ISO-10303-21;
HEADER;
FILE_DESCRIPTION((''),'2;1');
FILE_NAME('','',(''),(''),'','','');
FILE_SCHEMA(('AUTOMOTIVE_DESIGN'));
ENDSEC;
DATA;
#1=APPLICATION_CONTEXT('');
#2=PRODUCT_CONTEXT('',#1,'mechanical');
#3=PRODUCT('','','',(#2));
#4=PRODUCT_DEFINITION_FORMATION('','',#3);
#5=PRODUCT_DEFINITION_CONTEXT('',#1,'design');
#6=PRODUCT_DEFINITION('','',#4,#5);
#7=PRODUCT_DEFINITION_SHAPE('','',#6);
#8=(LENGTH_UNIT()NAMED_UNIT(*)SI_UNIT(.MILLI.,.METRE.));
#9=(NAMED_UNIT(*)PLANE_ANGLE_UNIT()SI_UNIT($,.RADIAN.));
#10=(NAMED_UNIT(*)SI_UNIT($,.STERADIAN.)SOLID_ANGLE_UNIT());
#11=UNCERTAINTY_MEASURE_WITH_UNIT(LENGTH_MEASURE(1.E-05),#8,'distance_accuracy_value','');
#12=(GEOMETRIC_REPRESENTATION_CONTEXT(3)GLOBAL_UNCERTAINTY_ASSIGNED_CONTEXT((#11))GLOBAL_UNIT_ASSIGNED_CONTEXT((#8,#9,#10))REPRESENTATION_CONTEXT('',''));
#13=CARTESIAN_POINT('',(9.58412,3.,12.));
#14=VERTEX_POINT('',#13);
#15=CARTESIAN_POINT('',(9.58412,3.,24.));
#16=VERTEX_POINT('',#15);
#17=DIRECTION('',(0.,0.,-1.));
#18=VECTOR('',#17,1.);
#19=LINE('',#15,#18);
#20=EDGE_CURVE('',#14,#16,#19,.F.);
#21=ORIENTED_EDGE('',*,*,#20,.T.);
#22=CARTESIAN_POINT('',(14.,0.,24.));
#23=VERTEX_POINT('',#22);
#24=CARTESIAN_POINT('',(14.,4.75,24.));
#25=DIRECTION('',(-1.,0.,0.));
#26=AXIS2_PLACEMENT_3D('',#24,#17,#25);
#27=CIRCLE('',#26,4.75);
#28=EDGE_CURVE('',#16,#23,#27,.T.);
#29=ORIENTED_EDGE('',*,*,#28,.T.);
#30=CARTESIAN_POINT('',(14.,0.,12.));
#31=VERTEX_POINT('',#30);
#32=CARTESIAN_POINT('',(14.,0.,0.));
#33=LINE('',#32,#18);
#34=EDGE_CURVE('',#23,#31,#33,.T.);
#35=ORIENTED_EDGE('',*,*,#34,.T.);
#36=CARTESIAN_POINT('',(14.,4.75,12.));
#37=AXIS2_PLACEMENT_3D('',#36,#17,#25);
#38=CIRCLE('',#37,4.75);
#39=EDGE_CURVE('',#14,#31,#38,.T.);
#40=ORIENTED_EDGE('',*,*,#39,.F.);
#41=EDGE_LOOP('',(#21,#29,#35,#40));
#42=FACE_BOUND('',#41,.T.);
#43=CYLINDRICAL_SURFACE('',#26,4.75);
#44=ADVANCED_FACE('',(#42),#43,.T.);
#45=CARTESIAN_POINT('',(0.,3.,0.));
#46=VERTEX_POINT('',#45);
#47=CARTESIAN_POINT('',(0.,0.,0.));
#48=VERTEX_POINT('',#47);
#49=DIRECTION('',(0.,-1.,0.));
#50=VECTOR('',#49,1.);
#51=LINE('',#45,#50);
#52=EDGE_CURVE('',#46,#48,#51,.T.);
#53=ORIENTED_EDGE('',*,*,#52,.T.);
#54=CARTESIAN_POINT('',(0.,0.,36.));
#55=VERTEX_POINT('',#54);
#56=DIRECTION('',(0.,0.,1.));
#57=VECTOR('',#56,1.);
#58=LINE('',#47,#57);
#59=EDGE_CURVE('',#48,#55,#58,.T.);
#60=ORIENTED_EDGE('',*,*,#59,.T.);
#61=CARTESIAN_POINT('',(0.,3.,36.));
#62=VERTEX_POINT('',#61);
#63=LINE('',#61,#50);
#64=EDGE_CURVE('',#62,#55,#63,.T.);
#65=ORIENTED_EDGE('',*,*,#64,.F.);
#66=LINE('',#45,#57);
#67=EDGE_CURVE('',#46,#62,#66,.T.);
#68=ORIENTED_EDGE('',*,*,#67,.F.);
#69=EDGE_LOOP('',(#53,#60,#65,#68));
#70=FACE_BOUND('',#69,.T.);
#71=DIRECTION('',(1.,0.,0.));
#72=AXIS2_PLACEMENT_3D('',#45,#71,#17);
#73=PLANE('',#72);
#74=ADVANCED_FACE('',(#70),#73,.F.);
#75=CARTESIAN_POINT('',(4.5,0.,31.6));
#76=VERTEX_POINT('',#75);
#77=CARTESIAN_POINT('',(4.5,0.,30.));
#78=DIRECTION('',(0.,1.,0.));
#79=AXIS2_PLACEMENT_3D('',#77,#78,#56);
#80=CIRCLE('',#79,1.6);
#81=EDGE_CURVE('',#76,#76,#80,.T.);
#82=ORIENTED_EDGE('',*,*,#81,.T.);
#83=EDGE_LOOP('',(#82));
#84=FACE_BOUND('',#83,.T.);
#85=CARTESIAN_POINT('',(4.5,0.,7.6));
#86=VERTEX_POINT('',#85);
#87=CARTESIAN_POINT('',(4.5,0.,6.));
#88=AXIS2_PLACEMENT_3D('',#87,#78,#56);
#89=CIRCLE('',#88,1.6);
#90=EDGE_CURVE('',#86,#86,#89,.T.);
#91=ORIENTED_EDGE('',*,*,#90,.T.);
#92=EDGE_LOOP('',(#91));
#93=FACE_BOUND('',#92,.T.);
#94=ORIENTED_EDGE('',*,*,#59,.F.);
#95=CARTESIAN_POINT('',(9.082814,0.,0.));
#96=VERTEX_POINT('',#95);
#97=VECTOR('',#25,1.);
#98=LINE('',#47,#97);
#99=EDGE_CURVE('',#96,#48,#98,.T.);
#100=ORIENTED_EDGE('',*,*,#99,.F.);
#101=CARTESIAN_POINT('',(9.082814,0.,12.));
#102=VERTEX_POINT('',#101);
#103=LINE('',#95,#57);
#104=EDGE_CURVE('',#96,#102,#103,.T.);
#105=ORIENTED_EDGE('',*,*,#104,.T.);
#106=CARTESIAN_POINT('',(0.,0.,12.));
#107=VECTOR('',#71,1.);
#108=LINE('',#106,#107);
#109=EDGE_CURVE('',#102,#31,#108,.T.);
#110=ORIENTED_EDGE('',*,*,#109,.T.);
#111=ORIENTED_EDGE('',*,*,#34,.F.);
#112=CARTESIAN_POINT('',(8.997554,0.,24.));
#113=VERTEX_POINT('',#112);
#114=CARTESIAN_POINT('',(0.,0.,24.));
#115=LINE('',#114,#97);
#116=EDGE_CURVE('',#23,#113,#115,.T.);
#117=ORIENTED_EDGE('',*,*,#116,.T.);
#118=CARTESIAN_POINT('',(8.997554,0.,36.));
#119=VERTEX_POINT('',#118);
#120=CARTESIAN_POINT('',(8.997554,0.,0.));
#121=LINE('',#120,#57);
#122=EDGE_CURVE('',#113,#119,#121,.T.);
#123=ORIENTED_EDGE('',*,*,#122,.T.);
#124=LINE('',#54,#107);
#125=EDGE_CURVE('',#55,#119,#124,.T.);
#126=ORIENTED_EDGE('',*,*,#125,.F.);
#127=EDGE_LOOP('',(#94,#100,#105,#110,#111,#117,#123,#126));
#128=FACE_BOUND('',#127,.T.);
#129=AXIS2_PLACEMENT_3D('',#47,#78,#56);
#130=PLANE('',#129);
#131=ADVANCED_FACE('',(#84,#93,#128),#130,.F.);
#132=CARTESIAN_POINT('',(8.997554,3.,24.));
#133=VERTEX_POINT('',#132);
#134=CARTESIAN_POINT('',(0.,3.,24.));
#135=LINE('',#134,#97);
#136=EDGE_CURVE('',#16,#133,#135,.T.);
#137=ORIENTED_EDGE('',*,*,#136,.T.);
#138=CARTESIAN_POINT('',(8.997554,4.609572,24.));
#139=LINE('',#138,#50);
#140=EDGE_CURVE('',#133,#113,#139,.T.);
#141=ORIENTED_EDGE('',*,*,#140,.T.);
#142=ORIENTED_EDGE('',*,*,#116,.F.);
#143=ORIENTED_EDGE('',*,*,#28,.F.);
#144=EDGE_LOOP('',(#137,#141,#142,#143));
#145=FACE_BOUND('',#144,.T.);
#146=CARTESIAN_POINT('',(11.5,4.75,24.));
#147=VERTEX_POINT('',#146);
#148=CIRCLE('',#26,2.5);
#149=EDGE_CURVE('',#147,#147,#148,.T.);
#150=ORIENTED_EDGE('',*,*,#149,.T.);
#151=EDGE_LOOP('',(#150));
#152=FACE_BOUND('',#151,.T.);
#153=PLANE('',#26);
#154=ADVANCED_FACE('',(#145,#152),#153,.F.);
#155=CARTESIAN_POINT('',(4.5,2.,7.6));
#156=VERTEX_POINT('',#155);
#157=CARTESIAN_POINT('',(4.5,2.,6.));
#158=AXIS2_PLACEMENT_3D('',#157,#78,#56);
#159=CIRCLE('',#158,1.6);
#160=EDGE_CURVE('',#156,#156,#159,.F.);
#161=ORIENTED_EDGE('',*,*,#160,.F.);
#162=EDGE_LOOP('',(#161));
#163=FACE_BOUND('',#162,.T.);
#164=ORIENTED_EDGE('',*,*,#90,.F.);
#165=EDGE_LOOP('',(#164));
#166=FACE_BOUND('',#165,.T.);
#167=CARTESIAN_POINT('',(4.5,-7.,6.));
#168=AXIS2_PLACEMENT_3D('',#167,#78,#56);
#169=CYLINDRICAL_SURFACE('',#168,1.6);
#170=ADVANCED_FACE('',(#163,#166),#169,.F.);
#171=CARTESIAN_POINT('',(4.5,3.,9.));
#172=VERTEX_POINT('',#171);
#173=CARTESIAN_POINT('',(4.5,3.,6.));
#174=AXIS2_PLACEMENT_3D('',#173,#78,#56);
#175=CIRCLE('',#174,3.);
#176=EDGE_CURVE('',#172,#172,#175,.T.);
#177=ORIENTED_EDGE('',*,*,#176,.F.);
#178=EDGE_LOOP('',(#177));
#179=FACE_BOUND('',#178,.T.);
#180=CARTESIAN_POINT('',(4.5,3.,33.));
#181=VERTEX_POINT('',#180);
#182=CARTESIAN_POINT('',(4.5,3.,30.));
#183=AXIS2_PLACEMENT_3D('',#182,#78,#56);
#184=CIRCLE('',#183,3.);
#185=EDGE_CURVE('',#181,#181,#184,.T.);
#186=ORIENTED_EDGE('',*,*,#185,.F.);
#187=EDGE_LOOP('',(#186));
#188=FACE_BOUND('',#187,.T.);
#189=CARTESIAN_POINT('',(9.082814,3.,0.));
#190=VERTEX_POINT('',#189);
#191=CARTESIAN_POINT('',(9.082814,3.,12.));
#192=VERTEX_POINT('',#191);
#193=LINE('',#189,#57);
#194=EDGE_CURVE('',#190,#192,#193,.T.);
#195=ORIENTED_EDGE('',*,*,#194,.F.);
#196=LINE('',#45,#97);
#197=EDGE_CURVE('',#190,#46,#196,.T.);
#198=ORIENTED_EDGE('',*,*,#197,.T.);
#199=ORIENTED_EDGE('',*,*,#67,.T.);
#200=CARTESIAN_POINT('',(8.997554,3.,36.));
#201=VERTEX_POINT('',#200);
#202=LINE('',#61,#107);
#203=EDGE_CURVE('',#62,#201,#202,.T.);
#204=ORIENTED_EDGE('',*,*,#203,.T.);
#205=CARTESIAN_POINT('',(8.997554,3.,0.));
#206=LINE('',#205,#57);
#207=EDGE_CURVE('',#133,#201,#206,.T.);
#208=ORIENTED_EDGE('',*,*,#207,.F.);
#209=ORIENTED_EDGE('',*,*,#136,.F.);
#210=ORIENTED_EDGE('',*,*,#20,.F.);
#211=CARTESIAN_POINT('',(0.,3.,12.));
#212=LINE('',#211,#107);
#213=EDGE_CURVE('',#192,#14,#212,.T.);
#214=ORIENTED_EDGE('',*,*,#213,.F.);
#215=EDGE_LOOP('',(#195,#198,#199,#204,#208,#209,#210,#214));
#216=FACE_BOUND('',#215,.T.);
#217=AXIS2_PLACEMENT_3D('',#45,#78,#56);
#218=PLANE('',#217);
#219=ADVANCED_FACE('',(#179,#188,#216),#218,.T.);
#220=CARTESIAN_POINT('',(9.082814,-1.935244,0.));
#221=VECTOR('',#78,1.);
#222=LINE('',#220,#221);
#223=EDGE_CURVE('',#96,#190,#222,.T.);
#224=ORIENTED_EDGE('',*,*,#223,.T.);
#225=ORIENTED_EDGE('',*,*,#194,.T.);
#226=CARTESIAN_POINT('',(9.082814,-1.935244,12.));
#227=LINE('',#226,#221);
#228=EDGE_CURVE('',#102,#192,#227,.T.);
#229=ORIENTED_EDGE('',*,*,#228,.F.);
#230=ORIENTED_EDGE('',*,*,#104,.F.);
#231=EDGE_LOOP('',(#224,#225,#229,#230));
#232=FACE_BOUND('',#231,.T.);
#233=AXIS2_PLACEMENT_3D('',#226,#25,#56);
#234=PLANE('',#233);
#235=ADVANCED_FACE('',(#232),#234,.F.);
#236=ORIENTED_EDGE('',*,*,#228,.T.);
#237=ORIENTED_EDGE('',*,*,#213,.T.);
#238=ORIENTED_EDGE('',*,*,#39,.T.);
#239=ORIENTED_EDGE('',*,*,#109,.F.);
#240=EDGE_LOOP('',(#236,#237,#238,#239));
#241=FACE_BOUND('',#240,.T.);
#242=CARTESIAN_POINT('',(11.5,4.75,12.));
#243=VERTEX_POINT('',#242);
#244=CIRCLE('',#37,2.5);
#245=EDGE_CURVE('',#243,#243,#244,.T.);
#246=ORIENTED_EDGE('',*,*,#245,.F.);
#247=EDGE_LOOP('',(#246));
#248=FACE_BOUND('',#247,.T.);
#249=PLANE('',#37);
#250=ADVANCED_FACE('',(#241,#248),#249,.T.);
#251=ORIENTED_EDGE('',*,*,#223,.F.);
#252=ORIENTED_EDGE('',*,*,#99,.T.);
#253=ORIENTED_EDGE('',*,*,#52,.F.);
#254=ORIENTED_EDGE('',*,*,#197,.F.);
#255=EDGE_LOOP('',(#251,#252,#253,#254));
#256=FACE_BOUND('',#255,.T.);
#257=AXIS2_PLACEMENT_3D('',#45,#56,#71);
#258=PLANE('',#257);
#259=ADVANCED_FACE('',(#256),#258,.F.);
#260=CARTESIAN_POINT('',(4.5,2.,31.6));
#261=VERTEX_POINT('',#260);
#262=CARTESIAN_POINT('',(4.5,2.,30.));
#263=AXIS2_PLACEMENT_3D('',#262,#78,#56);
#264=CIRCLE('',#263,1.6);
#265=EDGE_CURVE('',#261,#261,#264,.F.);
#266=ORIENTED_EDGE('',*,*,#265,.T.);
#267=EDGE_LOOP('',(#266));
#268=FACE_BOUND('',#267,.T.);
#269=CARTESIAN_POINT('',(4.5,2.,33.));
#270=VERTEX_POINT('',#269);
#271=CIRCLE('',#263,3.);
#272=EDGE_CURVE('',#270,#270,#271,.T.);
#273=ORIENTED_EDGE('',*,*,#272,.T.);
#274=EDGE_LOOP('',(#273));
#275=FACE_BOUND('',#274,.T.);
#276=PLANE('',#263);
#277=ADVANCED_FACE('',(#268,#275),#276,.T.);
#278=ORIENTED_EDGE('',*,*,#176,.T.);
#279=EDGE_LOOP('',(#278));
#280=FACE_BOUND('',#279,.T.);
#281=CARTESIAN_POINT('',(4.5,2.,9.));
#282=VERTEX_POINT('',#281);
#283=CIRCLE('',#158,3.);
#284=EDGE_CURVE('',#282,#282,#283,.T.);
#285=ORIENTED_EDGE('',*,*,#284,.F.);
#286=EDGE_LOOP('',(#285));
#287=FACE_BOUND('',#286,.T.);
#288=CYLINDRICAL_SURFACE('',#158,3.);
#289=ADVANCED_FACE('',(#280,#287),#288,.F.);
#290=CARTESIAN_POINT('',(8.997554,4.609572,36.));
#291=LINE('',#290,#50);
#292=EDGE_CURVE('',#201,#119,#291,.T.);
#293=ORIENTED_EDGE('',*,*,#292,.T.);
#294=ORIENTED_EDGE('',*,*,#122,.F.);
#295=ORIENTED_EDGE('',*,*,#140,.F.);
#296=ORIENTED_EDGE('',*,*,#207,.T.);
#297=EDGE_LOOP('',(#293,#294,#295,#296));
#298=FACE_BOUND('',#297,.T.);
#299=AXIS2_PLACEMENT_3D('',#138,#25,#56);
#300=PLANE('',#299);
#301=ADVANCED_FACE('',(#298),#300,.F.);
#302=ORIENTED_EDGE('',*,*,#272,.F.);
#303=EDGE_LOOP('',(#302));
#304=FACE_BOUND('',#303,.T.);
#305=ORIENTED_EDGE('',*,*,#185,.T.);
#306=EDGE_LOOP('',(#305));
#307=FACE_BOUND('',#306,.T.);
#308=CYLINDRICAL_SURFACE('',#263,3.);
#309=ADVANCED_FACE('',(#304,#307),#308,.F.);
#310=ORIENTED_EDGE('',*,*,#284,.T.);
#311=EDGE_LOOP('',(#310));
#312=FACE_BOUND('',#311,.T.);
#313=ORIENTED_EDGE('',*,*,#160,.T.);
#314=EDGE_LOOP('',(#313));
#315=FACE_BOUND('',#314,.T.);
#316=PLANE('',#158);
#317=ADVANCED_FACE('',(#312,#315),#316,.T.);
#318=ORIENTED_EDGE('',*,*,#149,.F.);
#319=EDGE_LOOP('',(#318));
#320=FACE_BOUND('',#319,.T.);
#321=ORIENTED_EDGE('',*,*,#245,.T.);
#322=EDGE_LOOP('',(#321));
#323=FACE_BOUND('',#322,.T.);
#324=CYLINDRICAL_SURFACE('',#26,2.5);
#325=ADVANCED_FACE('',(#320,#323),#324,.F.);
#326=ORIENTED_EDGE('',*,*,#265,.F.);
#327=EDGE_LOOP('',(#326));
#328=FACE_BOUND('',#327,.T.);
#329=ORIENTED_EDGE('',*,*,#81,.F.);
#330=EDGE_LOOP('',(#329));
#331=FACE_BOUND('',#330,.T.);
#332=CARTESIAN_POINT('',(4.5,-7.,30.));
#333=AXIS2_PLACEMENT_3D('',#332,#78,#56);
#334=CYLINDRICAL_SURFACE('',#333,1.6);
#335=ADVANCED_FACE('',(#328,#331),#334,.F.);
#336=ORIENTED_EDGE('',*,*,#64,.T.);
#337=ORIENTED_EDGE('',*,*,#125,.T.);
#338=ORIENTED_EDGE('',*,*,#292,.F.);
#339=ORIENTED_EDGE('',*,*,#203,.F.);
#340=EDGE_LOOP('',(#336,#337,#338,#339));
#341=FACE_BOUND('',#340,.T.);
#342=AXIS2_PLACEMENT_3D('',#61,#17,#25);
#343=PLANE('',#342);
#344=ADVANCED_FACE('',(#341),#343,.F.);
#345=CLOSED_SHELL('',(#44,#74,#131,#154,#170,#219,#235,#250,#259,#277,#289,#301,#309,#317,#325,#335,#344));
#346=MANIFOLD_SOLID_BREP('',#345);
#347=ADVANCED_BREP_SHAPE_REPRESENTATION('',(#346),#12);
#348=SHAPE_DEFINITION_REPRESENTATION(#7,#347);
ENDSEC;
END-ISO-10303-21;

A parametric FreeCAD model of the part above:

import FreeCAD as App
import Part
import Sketcher
Q = App.Units.Quantity

doc = App.newDocument("Part")
body = doc.addObject("PartDesign::Body", "Body")

sketch1 = body.newObject("Sketcher::SketchObject", "Sketch")
sketch1.AttachmentSupport = (doc.getObject("XZ_Plane"), [""])
sketch1.MapMode = "FlatFace"
sketch1.addGeometry(Part.LineSegment(App.Vector(0, 0, 0), App.Vector(0, 36, 0)), False)
sketch1.addGeometry(Part.LineSegment(App.Vector(0, 36, 0), App.Vector(14, 36, 0)), False)
sketch1.addGeometry(Part.LineSegment(App.Vector(14, 36, 0), App.Vector(14, 0, 0)), False)
sketch1.addGeometry(Part.LineSegment(App.Vector(14, 0, 0), App.Vector(0, 0, 0)), False)
sketch1.addConstraint(Sketcher.Constraint("Coincident", 0, 2, 1, 1))
sketch1.addConstraint(Sketcher.Constraint("Coincident", 1, 2, 2, 1))
sketch1.addConstraint(Sketcher.Constraint("Coincident", 2, 2, 3, 1))
sketch1.addConstraint(Sketcher.Constraint("Coincident", 3, 2, 0, 1))
sketch1.addConstraint(Sketcher.Constraint("Vertical", 0))
sketch1.addConstraint(Sketcher.Constraint("Horizontal", 1))
sketch1.addConstraint(Sketcher.Constraint("Vertical", 2))
sketch1.addConstraint(Sketcher.Constraint("Horizontal", 3))
sketch1.addConstraint(Sketcher.Constraint("Coincident", 3, 2, -1, 1))
sketch1.addConstraint(Sketcher.Constraint("DistanceX", 1, 1, 1, 2, Q("14 mm")))
sketch1.addConstraint(Sketcher.Constraint("DistanceY", 0, 1, 0, 2, Q("36 mm")))
pad1 = body.newObject("PartDesign::Pad", "Pad")
pad1.Profile = sketch1
pad1.Length = 3
pad1.Reversed = True

sketch2 = body.newObject("Sketcher::SketchObject", "Sketch001")
sketch2.AttachmentSupport = (doc.getObject("XZ_Plane"), [""])
sketch2.MapMode = "FlatFace"
sketch2.AttachmentOffset = App.Placement(App.Vector(0, 0, -3), App.Rotation())
sketch2.addGeometry(Part.Circle(App.Vector(4.5, 6, 0), App.Vector(0, 0, 1), 1.6), False)
sketch2.addGeometry(Part.Circle(App.Vector(4.5, 30, 0), App.Vector(0, 0, 1), 1.6), False)
sketch2.addConstraint(Sketcher.Constraint("Equal", 0, 1))
sketch2.addConstraint(Sketcher.Constraint("Vertical", 0, 3, 1, 3))
sketch2.addConstraint(Sketcher.Constraint("Diameter", 0, Q("3.2 mm")))
sketch2.addConstraint(Sketcher.Constraint("DistanceY", -1, 1, 0, 3, Q("6 mm")))
sketch2.addConstraint(Sketcher.Constraint("DistanceY", -1, 1, 1, 3, Q("30 mm")))
sketch2.addConstraint(Sketcher.Constraint("DistanceX", -1, 1, 0, 3, Q("4.5 mm")))
pocket1 = body.newObject("PartDesign::Pocket", "Pocket")
pocket1.Profile = sketch2
pocket1.Length = 10
pocket1.Reversed = True

sketch3 = body.newObject("Sketcher::SketchObject", "Sketch002")
sketch3.AttachmentSupport = (doc.getObject("XZ_Plane"), [""])
sketch3.MapMode = "FlatFace"
sketch3.AttachmentOffset = App.Placement(App.Vector(0, 0, -3), App.Rotation())
sketch3.addGeometry(Part.Circle(App.Vector(4.5, 6, 0), App.Vector(0, 0, 1), 3), False)
sketch3.addGeometry(Part.Circle(App.Vector(4.5, 30, 0), App.Vector(0, 0, 1), 3), False)
sketch3.addConstraint(Sketcher.Constraint("Equal", 0, 1))
sketch3.addConstraint(Sketcher.Constraint("Vertical", 0, 3, 1, 3))
sketch3.addConstraint(Sketcher.Constraint("Diameter", 0, Q("6 mm")))
sketch3.addConstraint(Sketcher.Constraint("DistanceY", -1, 1, 0, 3, Q("6 mm")))
sketch3.addConstraint(Sketcher.Constraint("DistanceY", -1, 1, 1, 3, Q("30 mm")))
sketch3.addConstraint(Sketcher.Constraint("DistanceX", -1, 1, 0, 3, Q("4.5 mm")))
pocket2 = body.newObject("PartDesign::Pocket", "Pocket001")
pocket2.Profile = sketch3
pocket2.Length = 1
pocket2.Reversed = True

sketch4 = body.newObject("Sketcher::SketchObject", "Sketch003")
sketch4.AttachmentSupport = (doc.getObject("XY_Plane"), [""])
sketch4.MapMode = "FlatFace"
sketch4.AttachmentOffset = App.Placement(App.Vector(0, 0, 12), App.Rotation())
sketch4.addGeometry(Part.Circle(App.Vector(14, 4.8, 0), App.Vector(0, 0, 1), 4.8), False)
sketch4.addConstraint(Sketcher.Constraint("Diameter", 0, Q("9.5 mm")))
sketch4.addConstraint(Sketcher.Constraint("DistanceX", -1, 1, 0, 3, Q("14 mm")))
sketch4.addConstraint(Sketcher.Constraint("DistanceY", -1, 1, 0, 3, Q("4.75 mm")))
pad2 = body.newObject("PartDesign::Pad", "Pad001")
pad2.Profile = sketch4
pad2.Length = 12

sketch5 = body.newObject("Sketcher::SketchObject", "Sketch004")
sketch5.AttachmentSupport = (doc.getObject("XY_Plane"), [""])
sketch5.MapMode = "FlatFace"
sketch5.AttachmentOffset = App.Placement(App.Vector(0, 0, 12), App.Rotation())
sketch5.addGeometry(Part.Circle(App.Vector(14, 4.8, 0), App.Vector(0, 0, 1), 2.5), False)
sketch5.addConstraint(Sketcher.Constraint("Diameter", 0, Q("5 mm")))
sketch5.addConstraint(Sketcher.Constraint("DistanceX", -1, 1, 0, 3, Q("14 mm")))
sketch5.addConstraint(Sketcher.Constraint("DistanceY", -1, 1, 0, 3, Q("4.75 mm")))
pocket3 = body.newObject("PartDesign::Pocket", "Pocket002")
pocket3.Profile = sketch5
pocket3.Length = 12
pocket3.Reversed = True

sketch6 = body.newObject("Sketcher::SketchObject", "Sketch005")
sketch6.AttachmentSupport = (doc.getObject("XY_Plane"), [""])
sketch6.MapMode = "FlatFace"
sketch6.addGeometry(Part.LineSegment(App.Vector(20, 8, 0), App.Vector(20, -2, 0)), False)
sketch6.addGeometry(Part.LineSegment(App.Vector(20, -2, 0), App.Vector(9, -2, 0)), False)
sketch6.addGeometry(Part.LineSegment(App.Vector(9, -2, 0), App.Vector(9, 8, 0)), False)
sketch6.addGeometry(Part.LineSegment(App.Vector(9, 8, 0), App.Vector(20, 8, 0)), False)
sketch6.addConstraint(Sketcher.Constraint("Coincident", 0, 2, 1, 1))
sketch6.addConstraint(Sketcher.Constraint("Coincident", 1, 2, 2, 1))
sketch6.addConstraint(Sketcher.Constraint("Coincident", 2, 2, 3, 1))
sketch6.addConstraint(Sketcher.Constraint("Coincident", 3, 2, 0, 1))
sketch6.addConstraint(Sketcher.Constraint("Vertical", 0))
sketch6.addConstraint(Sketcher.Constraint("Horizontal", 1))
sketch6.addConstraint(Sketcher.Constraint("Vertical", 2))
sketch6.addConstraint(Sketcher.Constraint("Horizontal", 3))
sketch6.addConstraint(Sketcher.Constraint("DistanceX", 1, 2, 1, 1, Q("10.773255 mm")))
sketch6.addConstraint(Sketcher.Constraint("DistanceY", 0, 2, 0, 1, Q("9.942175 mm")))
sketch6.addConstraint(Sketcher.Constraint("DistanceX", -1, 1, 0, 2, Q("19.856069 mm")))
sketch6.addConstraint(Sketcher.Constraint("DistanceY", -1, 1, 2, 2, Q("8.006931 mm")))
pocket4 = body.newObject("PartDesign::Pocket", "Pocket003")
pocket4.Profile = sketch6
pocket4.Length = 12
pocket4.Reversed = True

sketch7 = body.newObject("Sketcher::SketchObject", "Sketch006")
sketch7.AttachmentSupport = (doc.getObject("XY_Plane"), [""])
sketch7.MapMode = "FlatFace"
sketch7.AttachmentOffset = App.Placement(App.Vector(0, 0, 36), App.Rotation())
sketch7.addGeometry(Part.LineSegment(App.Vector(9, 5, 0), App.Vector(9, -1, 0)), False)
sketch7.addGeometry(Part.LineSegment(App.Vector(9, -1, 0), App.Vector(19, -1, 0)), False)
sketch7.addGeometry(Part.LineSegment(App.Vector(19, -1, 0), App.Vector(19, 5, 0)), False)
sketch7.addGeometry(Part.LineSegment(App.Vector(19, 5, 0), App.Vector(9, 5, 0)), False)
sketch7.addConstraint(Sketcher.Constraint("Coincident", 0, 2, 1, 1))
sketch7.addConstraint(Sketcher.Constraint("Coincident", 1, 2, 2, 1))
sketch7.addConstraint(Sketcher.Constraint("Coincident", 2, 2, 3, 1))
sketch7.addConstraint(Sketcher.Constraint("Coincident", 3, 2, 0, 1))
sketch7.addConstraint(Sketcher.Constraint("Vertical", 0))
sketch7.addConstraint(Sketcher.Constraint("Horizontal", 1))
sketch7.addConstraint(Sketcher.Constraint("Vertical", 2))
sketch7.addConstraint(Sketcher.Constraint("Horizontal", 3))
sketch7.addConstraint(Sketcher.Constraint("DistanceX", 1, 1, 1, 2, Q("10.083051 mm")))
sketch7.addConstraint(Sketcher.Constraint("DistanceY", 0, 2, 0, 1, Q("5.143062 mm")))
sketch7.addConstraint(Sketcher.Constraint("DistanceY", 0, 2, -1, 1, Q("0.53349 mm")))
sketch7.addConstraint(Sketcher.Constraint("DistanceX", -1, 1, 0, 2, Q("8.997554 mm")))
pocket5 = body.newObject("PartDesign::Pocket", "Pocket004")
pocket5.Profile = sketch7
pocket5.Length = 12

doc.recompute()
